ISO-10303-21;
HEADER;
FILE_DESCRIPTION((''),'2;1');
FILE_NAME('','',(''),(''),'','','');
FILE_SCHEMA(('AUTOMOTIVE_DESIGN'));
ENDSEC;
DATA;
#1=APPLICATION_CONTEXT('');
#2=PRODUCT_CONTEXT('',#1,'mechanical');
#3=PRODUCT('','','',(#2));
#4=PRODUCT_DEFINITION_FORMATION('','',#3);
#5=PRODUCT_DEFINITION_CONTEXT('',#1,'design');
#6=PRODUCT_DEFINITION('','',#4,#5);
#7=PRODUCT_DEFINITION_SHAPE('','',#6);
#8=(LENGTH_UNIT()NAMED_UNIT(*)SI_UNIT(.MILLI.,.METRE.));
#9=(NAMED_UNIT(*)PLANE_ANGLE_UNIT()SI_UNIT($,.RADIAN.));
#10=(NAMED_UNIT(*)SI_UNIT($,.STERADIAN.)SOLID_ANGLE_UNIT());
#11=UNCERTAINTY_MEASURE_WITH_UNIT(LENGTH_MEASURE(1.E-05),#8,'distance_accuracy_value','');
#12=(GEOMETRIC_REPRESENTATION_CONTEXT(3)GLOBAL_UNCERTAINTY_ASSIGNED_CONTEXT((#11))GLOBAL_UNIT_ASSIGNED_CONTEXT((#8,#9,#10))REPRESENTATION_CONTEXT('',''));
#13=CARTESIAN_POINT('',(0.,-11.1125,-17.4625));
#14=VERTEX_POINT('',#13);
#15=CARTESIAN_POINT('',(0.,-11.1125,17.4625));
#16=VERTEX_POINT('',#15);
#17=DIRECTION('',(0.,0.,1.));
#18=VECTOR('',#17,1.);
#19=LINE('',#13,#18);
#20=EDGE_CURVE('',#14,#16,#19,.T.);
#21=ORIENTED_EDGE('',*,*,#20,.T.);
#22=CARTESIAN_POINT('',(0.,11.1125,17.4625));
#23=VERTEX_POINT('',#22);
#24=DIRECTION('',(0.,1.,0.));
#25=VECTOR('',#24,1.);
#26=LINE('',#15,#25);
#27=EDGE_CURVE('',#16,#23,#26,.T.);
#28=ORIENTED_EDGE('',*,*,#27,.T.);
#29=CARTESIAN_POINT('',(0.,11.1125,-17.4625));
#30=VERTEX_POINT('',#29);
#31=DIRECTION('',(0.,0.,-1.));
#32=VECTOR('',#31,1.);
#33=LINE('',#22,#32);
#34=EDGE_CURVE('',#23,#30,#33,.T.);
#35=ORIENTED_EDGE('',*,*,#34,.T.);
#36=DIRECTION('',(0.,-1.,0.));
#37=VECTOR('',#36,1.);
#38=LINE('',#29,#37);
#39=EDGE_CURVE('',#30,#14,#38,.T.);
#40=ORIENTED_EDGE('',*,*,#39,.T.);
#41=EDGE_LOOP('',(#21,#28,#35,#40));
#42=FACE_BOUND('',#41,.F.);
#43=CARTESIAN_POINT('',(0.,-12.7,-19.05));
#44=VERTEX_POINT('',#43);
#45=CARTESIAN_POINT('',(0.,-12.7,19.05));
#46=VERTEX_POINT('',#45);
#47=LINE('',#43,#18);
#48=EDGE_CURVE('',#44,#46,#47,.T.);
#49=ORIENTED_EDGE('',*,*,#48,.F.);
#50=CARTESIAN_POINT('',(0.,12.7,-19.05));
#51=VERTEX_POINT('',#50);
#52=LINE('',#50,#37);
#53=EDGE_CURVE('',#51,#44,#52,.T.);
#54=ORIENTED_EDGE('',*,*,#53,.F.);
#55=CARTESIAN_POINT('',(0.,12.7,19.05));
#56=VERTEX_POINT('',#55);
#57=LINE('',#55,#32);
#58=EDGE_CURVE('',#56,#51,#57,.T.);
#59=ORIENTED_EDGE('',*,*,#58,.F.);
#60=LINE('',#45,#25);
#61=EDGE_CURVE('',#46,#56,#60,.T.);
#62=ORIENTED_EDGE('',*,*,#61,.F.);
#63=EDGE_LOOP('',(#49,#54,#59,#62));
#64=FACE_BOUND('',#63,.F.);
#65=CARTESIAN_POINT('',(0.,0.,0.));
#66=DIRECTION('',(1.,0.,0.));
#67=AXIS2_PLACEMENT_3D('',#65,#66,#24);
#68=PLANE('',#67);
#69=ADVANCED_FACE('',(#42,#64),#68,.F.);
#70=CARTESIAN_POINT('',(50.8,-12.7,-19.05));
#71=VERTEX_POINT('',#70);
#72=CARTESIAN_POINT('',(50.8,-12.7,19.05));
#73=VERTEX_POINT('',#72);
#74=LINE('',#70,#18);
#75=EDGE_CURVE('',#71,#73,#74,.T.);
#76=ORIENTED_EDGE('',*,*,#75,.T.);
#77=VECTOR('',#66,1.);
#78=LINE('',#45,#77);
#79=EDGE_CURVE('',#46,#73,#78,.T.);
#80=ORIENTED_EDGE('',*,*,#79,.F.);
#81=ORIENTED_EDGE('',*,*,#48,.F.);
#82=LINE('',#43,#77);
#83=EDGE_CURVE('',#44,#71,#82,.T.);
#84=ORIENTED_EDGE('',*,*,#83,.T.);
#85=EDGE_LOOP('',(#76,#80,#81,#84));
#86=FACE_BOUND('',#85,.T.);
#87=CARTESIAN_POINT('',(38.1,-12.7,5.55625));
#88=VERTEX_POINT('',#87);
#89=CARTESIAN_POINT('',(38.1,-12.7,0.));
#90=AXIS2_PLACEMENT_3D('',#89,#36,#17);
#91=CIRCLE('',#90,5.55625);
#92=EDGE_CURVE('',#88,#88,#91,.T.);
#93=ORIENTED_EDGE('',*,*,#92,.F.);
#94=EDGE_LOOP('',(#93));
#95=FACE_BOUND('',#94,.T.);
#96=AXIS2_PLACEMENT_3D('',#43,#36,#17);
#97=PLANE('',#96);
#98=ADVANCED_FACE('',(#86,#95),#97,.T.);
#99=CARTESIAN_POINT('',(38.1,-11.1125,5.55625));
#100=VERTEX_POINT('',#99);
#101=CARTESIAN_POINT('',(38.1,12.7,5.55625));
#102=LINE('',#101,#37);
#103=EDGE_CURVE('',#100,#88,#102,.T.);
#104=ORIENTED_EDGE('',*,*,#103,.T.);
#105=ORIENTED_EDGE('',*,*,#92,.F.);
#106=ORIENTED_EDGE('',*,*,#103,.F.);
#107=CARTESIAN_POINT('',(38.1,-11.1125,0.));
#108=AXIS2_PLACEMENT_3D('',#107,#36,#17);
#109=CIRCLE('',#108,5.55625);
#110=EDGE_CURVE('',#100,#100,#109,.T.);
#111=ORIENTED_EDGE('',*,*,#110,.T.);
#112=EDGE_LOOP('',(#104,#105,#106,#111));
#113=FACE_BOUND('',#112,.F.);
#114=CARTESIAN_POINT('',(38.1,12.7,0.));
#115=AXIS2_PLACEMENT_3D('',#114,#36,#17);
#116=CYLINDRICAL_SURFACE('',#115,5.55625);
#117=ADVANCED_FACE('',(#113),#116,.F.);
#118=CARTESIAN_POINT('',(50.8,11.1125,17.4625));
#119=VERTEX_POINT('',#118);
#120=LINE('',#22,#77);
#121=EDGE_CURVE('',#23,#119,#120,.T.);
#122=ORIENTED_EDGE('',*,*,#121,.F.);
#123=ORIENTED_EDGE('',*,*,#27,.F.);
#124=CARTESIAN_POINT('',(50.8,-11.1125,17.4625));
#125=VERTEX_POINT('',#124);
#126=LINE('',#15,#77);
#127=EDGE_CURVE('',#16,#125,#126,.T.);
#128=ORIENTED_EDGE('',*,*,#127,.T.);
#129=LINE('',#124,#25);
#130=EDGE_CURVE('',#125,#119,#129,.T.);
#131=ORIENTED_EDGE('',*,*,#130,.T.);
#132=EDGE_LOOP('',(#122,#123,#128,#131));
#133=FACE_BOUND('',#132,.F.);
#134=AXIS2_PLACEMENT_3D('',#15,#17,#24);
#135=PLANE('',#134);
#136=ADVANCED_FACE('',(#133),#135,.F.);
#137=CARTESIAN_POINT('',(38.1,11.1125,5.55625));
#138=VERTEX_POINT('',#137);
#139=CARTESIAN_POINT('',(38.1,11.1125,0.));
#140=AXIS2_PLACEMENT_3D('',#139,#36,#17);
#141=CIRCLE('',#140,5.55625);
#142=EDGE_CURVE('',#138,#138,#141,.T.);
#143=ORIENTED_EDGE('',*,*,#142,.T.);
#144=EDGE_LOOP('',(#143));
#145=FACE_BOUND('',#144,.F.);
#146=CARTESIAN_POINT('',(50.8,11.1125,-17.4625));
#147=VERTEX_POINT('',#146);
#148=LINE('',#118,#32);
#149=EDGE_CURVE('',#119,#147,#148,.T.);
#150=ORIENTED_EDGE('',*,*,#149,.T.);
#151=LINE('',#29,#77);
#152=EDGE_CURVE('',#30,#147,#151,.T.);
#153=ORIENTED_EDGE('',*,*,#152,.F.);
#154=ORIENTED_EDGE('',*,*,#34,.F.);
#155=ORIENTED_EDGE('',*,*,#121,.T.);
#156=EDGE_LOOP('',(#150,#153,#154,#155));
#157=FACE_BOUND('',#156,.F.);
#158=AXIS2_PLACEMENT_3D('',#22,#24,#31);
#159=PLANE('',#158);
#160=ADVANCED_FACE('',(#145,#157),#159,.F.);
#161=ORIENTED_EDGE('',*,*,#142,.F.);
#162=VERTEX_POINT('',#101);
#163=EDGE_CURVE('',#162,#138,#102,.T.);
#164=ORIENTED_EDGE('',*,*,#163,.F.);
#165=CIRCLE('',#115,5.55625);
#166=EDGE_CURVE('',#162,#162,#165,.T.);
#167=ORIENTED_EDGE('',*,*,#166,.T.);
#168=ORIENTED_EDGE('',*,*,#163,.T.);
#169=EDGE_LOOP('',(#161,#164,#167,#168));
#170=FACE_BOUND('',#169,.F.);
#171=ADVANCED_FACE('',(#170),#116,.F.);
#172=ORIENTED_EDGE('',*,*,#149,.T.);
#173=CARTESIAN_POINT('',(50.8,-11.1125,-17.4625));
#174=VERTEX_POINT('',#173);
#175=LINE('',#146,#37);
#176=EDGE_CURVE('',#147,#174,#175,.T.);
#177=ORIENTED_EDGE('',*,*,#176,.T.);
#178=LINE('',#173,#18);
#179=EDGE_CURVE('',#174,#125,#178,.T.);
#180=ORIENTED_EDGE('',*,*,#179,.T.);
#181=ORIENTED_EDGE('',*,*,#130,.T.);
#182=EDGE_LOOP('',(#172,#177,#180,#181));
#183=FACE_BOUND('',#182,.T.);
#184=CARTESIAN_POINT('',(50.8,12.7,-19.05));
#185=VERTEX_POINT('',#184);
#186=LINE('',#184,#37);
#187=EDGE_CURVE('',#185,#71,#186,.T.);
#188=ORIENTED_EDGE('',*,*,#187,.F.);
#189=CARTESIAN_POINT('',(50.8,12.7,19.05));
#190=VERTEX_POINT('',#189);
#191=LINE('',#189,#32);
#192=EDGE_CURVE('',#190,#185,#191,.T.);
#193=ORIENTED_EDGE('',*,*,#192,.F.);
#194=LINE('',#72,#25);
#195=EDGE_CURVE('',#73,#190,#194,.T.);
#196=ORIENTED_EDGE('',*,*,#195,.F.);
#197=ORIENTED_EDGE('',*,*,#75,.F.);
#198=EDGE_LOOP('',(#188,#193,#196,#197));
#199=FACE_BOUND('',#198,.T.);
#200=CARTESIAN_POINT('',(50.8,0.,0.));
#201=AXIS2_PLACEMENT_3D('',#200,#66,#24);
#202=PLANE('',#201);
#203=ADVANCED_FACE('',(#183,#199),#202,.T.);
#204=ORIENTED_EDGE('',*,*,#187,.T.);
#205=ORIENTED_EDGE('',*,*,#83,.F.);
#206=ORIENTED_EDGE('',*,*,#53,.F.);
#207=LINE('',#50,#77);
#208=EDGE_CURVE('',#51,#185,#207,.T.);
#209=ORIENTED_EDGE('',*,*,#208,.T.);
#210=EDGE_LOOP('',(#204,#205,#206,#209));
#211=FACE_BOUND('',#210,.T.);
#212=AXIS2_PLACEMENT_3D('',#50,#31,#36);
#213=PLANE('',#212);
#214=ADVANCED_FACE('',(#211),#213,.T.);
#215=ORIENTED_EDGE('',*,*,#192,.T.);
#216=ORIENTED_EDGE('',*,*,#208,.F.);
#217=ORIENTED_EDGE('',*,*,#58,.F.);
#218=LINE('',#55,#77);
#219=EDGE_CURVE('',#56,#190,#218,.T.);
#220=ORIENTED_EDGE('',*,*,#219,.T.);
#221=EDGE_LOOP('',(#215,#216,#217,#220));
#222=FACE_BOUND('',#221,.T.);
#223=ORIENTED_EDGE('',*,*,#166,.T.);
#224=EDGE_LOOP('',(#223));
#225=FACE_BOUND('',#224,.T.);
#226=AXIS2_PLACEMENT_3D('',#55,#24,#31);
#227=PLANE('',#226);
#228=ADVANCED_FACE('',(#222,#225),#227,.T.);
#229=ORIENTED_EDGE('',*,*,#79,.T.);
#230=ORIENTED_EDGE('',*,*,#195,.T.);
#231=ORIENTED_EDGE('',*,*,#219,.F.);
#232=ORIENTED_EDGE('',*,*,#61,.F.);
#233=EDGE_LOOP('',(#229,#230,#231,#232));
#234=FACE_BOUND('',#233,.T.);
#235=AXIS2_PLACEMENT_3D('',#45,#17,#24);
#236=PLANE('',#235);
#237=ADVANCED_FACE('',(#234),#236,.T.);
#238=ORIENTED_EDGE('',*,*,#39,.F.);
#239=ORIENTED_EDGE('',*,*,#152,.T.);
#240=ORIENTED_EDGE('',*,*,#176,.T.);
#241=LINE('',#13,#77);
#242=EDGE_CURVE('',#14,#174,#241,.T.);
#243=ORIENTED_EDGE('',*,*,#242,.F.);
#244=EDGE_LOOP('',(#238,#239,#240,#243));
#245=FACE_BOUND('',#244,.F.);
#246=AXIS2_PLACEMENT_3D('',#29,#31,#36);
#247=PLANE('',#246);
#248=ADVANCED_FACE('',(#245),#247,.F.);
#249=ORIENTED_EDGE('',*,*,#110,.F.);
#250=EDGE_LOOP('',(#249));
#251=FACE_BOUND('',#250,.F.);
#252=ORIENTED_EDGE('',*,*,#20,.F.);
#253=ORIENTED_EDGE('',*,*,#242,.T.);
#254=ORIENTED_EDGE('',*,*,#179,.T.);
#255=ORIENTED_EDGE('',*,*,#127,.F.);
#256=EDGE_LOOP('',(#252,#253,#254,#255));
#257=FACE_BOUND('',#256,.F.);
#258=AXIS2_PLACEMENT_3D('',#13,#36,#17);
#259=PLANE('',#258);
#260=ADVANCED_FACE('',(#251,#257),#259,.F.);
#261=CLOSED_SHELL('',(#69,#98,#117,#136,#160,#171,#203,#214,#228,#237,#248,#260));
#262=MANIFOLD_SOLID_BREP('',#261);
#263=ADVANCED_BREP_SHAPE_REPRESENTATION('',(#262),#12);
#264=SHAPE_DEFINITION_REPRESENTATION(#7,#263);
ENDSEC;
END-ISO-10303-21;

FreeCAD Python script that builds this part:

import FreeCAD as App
import Part
import Sketcher

V = App.Vector
Q = App.Units.Quantity


def add_polygon(sketch, points):
    """Adds a closed chain of lines whose ends are joined by coincident constraints."""
    first, n = sketch.GeometryCount, len(points)
    for a, b in zip(points, points[1:] + points[:1]):
        sketch.addGeometry(Part.LineSegment(App.Vector(*a, 0), App.Vector(*b, 0)), False)
    for i in range(n):
        sketch.addConstraint(Sketcher.Constraint("Coincident", first + i, 2, first + (i + 1) % n, 1))

doc = App.newDocument("Part")
body = doc.addObject("PartDesign::Body", "Body")

# Sketch on YZ plane
sketch1 = body.newObject("Sketcher::SketchObject", "Sketch")
sketch1.AttachmentSupport = (doc.getObject("YZ_Plane"), [""])
sketch1.MapMode = "FlatFace"
add_polygon(sketch1, [(12.7, 19.05), (-12.7, 19.05), (-12.7, -19.05), (12.7, -19.05)])  # lines 0-3
add_polygon(sketch1, [(-11.1125, -17.4625), (-11.1125, 17.4625), (11.1125, 17.4625), (11.1125, -17.4625)])  # lines 4-7
sketch1.addConstraint(Sketcher.Constraint("Horizontal", 0))
sketch1.addConstraint(Sketcher.Constraint("Vertical", 1))
sketch1.addConstraint(Sketcher.Constraint("Horizontal", 2))
sketch1.addConstraint(Sketcher.Constraint("Vertical", 3))
sketch1.addConstraint(Sketcher.Constraint("Vertical", 4))
sketch1.addConstraint(Sketcher.Constraint("Horizontal", 5))
sketch1.addConstraint(Sketcher.Constraint("Vertical", 6))
sketch1.addConstraint(Sketcher.Constraint("Horizontal", 7))
sketch1.addConstraint(Sketcher.Constraint("Symmetric", 0, 2, 2, 2, -1, 1))
sketch1.addConstraint(Sketcher.Constraint("Symmetric", 4, 2, 6, 2, -1, 1))
sketch1.addConstraint(Sketcher.Constraint("DistanceX", 0, 2, 0, 1, Q("1 in")))
sketch1.addConstraint(Sketcher.Constraint("DistanceY", 1, 2, 1, 1, Q("1.5 in")))
sketch1.addConstraint(Sketcher.Constraint("DistanceX", 0, 2, 4, 2, Q("0.0625 in")))
sketch1.addConstraint(Sketcher.Constraint("DistanceY", 4, 2, 0, 2, Q("0.0625 in")))
pad1 = body.newObject("PartDesign::Pad", "Pad")
pad1.Profile = sketch1
pad1.Length = Q("2 in")

# Sketch on XZ plane
sketch2 = body.newObject("Sketcher::SketchObject", "Sketch001")
sketch2.AttachmentSupport = (doc.getObject("XZ_Plane"), [""])
sketch2.MapMode = "FlatFace"
sketch2.AttachmentOffset = App.Placement(V(0, 0, -0.5 * 25.4), App.Rotation())
sketch2.addGeometry(Part.Circle(V(38.1, 0, 0), V(0, 0, 1), 5.55625), False)
sketch2.addConstraint(Sketcher.Constraint("PointOnObject", 0, 3, -1))
sketch2.addConstraint(Sketcher.Constraint("Diameter", 0, Q("0.4375 in")))
sketch2.addConstraint(Sketcher.Constraint("DistanceX", -1, 1, 0, 3, Q("1.5 in")))
doc.recompute()
hole = body.newObject("PartDesign::Hole", "Hole")
hole.Profile = sketch2
hole.ThreadType = "None"
hole.Diameter = Q("0.4375 in")
hole.DepthType = "ThroughAll"
hole.Reversed = True

doc.recompute()
